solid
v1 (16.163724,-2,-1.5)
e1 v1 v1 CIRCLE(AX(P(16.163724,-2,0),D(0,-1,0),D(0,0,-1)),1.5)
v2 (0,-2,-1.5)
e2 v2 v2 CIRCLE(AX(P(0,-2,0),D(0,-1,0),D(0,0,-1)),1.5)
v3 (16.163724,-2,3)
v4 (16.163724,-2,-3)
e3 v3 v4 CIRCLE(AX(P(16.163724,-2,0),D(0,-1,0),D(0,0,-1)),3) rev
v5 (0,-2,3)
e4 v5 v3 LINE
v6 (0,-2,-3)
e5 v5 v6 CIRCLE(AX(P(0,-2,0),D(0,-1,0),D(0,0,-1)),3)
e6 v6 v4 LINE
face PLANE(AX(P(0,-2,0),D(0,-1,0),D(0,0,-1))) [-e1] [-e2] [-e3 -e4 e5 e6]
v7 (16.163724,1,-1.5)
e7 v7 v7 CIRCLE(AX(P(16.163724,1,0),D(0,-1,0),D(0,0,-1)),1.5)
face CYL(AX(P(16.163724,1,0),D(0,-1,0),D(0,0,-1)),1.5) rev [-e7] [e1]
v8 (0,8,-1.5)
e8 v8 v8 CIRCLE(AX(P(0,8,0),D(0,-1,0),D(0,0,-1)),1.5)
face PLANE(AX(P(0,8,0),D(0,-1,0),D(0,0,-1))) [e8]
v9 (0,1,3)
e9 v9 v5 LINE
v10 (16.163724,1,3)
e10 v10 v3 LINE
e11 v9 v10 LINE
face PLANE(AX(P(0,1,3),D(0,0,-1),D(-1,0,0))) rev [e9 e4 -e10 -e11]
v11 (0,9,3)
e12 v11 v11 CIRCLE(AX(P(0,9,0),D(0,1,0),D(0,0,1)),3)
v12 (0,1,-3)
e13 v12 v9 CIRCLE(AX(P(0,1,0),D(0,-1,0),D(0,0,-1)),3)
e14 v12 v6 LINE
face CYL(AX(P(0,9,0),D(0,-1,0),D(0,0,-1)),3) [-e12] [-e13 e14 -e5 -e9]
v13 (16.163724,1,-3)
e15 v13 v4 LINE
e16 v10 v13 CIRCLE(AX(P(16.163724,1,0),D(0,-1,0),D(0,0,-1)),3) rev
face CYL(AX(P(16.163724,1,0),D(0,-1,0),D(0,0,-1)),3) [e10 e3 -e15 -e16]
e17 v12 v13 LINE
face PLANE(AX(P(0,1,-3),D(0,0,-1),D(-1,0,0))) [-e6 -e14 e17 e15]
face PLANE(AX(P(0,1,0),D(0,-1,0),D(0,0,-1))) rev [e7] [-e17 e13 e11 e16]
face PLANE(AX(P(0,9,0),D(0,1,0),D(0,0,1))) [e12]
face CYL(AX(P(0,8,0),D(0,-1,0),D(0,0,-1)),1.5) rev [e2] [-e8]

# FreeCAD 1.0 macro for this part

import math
import FreeCAD as App
import Part
import Sketcher
from FreeCAD import Vector

doc = App.newDocument("Part")
params = doc.addObject("Spreadsheet::Sheet", "Params")
for row, (alias, value) in enumerate([
    ("sketch1_diameter", "6 mm"),
    ("pad1_length", "9 mm"),
    ("sketch2_diameter", "6 mm"),
    ("pad2_length", "2 mm"),
    ("sketch3_diameter", "3 mm"),
    ("sketch3_radius", "3 mm"),
    ("pad3_length", "3 mm"),
    ("sketch4_diameter", "3 mm"),
    ("pocket1_length", "10 mm"),
], start=1):
    params.set(f"A{row}", alias)
    params.set(f"B{row}", "=" + value)
    params.setAlias(f"B{row}", alias)

body = doc.addObject("PartDesign::Body", "Body")

sketch1 = body.newObject("Sketcher::SketchObject", "Sketch")
sketch1.AttachmentSupport = (doc.getObject("XZ_Plane"), [""])
sketch1.MapMode = "FlatFace"
sketch1.addGeometry(Part.Circle(Vector(0, 0, 0), Vector(0, 0, 1), 3), False)
sketch1.addConstraint(Sketcher.Constraint("Coincident", 0, 3, -1, 1))
sketch1.addConstraint(Sketcher.Constraint("Diameter", 0, 6.0))
sketch1.setExpression("Constraints[1]", "Params.sketch1_diameter")
pad1 = body.newObject("PartDesign::Pad", "Pad")
pad1.Profile = sketch1
pad1.setExpression("Length", "Params.pad1_length")
pad1.Reversed = True

sketch2 = body.newObject("Sketcher::SketchObject", "Sketch001")
sketch2.AttachmentSupport = (doc.getObject("XZ_Plane"), [""])
sketch2.MapMode = "FlatFace"
sketch2.addGeometry(Part.Circle(Vector(0, 0, 0), Vector(0, 0, 1), 3), False)
sketch2.addConstraint(Sketcher.Constraint("Coincident", 0, 3, -1, 1))
sketch2.addConstraint(Sketcher.Constraint("Diameter", 0, 6.0))
sketch2.setExpression("Constraints[1]", "Params.sketch2_diameter")
pad2 = body.newObject("PartDesign::Pad", "Pad001")
pad2.Profile = sketch2
pad2.setExpression("Length", "Params.pad2_length")

sketch3 = body.newObject("Sketcher::SketchObject", "Sketch002")
sketch3.AttachmentSupport = (doc.getObject("XZ_Plane"), [""])
sketch3.MapMode = "FlatFace"
sketch3.AttachmentOffset = App.Placement(Vector(0, 0, 2), App.Rotation())
sketch3.addGeometry(Part.LineSegment(Vector(16.2, 3, 0), Vector(0, 3, 0)), False)
sketch3.addGeometry(Part.ArcOfCircle(Part.Circle(Vector(0, 0, 0), Vector(0, 0, 1), 3), math.radians(0), math.radians(90)), False)
sketch3.addGeometry(Part.ArcOfCircle(Part.Circle(Vector(0, 0, 0), Vector(0, 0, 1), 3), math.radians(-90), math.radians(0)), False)
sketch3.addGeometry(Part.LineSegment(Vector(0, -3, 0), Vector(16.2, -3, 0)), False)
sketch3.addGeometry(Part.ArcOfCircle(Part.Circle(Vector(16.2, 0, 0), Vector(0, 0, 1), 3), math.radians(-90), math.radians(90)), False)
sketch3.addGeometry(Part.Circle(Vector(16.2, 0, 0), Vector(0, 0, 1), 1.5), False)
sketch3.addConstraint(Sketcher.Constraint("Tangent", 0, 2, 1, 2))
sketch3.addConstraint(Sketcher.Constraint("Tangent", 1, 1, 2, 2))
sketch3.addConstraint(Sketcher.Constraint("Tangent", 2, 1, 3, 1))
sketch3.addConstraint(Sketcher.Constraint("Tangent", 3, 2, 4, 1))
sketch3.addConstraint(Sketcher.Constraint("Tangent", 4, 2, 0, 1))
sketch3.addConstraint(Sketcher.Constraint("Horizontal", 0))
sketch3.addConstraint(Sketcher.Constraint("Horizontal", 3))
sketch3.addConstraint(Sketcher.Constraint("Coincident", 1, 3, -1, 1))
sketch3.addConstraint(Sketcher.Constraint("Coincident", 5, 3, 4, 3))
sketch3.addConstraint(Sketcher.Constraint("Equal", 1, 2))
sketch3.addConstraint(Sketcher.Constraint("PointOnObject", 1, 1, -1))
sketch3.addConstraint(Sketcher.Constraint("Diameter", 5, 3.0))
sketch3.addConstraint(Sketcher.Constraint("Radius", 1, 3.0))
sketch3.addConstraint(Sketcher.Constraint("DistanceX", 0, 2, 0, 1, 16.163724))
sketch3.setExpression("Constraints[11]", "Params.sketch3_diameter")
sketch3.setExpression("Constraints[12]", "Params.sketch3_radius")
pad3 = body.newObject("PartDesign::Pad", "Pad002")
pad3.Profile = sketch3
pad3.setExpression("Length", "Params.pad3_length")
pad3.Reversed = True

sketch4 = body.newObject("Sketcher::SketchObject", "Sketch003")
sketch4.AttachmentSupport = (doc.getObject("XZ_Plane"), [""])
sketch4.MapMode = "FlatFace"
sketch4.AttachmentOffset = App.Placement(Vector(0, 0, 2), App.Rotation())
sketch4.addGeometry(Part.Circle(Vector(0, 0, 0), Vector(0, 0, 1), 1.5), False)
sketch4.addConstraint(Sketcher.Constraint("Coincident", 0, 3, -1, 1))
sketch4.addConstraint(Sketcher.Constraint("Diameter", 0, 3.0))
sketch4.setExpression("Constraints[1]", "Params.sketch4_diameter")
pocket1 = body.newObject("PartDesign::Pocket", "Pocket")
pocket1.Profile = sketch4
pocket1.setExpression("Length", "Params.pocket1_length")

doc.recompute()
